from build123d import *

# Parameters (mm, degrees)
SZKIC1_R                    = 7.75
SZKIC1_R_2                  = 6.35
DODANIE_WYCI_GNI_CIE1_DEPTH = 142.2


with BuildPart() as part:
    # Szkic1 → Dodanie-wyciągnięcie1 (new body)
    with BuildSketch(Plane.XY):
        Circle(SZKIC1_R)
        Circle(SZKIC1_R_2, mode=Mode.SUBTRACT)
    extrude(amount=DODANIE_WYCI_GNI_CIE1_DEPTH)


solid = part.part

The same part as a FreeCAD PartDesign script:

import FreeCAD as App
import Part
import Sketcher
from FreeCAD import Vector
Q = App.Units.Quantity

doc = App.newDocument("Part")
body = doc.addObject("PartDesign::Body", "Body")

# Sketch on XY plane
sketch1 = body.newObject("Sketcher::SketchObject", "Sketch")
sketch1.AttachmentSupport = (doc.getObject("XY_Plane"), [""])
sketch1.MapMode = "FlatFace"
sketch1.addGeometry([
    Part.Circle(Vector(0, 0, 0), Vector(0, 0, 1), 8),
    Part.Circle(Vector(0, 0, 0), Vector(0, 0, 1), 6),
], False)
sketch1.addConstraint([
    Sketcher.Constraint("Coincident", 0, 3, -1, 1),
    Sketcher.Constraint("Coincident", 1, 3, -1, 1),
    Sketcher.Constraint("Diameter", 0, Q("15.5 mm")),
    Sketcher.Constraint("Diameter", 1, Q("12.7 mm")),
])
pad1 = body.newObject("PartDesign::Pad", "Pad")
pad1.Profile = sketch1
pad1.Length = 142.2

doc.recompute()
